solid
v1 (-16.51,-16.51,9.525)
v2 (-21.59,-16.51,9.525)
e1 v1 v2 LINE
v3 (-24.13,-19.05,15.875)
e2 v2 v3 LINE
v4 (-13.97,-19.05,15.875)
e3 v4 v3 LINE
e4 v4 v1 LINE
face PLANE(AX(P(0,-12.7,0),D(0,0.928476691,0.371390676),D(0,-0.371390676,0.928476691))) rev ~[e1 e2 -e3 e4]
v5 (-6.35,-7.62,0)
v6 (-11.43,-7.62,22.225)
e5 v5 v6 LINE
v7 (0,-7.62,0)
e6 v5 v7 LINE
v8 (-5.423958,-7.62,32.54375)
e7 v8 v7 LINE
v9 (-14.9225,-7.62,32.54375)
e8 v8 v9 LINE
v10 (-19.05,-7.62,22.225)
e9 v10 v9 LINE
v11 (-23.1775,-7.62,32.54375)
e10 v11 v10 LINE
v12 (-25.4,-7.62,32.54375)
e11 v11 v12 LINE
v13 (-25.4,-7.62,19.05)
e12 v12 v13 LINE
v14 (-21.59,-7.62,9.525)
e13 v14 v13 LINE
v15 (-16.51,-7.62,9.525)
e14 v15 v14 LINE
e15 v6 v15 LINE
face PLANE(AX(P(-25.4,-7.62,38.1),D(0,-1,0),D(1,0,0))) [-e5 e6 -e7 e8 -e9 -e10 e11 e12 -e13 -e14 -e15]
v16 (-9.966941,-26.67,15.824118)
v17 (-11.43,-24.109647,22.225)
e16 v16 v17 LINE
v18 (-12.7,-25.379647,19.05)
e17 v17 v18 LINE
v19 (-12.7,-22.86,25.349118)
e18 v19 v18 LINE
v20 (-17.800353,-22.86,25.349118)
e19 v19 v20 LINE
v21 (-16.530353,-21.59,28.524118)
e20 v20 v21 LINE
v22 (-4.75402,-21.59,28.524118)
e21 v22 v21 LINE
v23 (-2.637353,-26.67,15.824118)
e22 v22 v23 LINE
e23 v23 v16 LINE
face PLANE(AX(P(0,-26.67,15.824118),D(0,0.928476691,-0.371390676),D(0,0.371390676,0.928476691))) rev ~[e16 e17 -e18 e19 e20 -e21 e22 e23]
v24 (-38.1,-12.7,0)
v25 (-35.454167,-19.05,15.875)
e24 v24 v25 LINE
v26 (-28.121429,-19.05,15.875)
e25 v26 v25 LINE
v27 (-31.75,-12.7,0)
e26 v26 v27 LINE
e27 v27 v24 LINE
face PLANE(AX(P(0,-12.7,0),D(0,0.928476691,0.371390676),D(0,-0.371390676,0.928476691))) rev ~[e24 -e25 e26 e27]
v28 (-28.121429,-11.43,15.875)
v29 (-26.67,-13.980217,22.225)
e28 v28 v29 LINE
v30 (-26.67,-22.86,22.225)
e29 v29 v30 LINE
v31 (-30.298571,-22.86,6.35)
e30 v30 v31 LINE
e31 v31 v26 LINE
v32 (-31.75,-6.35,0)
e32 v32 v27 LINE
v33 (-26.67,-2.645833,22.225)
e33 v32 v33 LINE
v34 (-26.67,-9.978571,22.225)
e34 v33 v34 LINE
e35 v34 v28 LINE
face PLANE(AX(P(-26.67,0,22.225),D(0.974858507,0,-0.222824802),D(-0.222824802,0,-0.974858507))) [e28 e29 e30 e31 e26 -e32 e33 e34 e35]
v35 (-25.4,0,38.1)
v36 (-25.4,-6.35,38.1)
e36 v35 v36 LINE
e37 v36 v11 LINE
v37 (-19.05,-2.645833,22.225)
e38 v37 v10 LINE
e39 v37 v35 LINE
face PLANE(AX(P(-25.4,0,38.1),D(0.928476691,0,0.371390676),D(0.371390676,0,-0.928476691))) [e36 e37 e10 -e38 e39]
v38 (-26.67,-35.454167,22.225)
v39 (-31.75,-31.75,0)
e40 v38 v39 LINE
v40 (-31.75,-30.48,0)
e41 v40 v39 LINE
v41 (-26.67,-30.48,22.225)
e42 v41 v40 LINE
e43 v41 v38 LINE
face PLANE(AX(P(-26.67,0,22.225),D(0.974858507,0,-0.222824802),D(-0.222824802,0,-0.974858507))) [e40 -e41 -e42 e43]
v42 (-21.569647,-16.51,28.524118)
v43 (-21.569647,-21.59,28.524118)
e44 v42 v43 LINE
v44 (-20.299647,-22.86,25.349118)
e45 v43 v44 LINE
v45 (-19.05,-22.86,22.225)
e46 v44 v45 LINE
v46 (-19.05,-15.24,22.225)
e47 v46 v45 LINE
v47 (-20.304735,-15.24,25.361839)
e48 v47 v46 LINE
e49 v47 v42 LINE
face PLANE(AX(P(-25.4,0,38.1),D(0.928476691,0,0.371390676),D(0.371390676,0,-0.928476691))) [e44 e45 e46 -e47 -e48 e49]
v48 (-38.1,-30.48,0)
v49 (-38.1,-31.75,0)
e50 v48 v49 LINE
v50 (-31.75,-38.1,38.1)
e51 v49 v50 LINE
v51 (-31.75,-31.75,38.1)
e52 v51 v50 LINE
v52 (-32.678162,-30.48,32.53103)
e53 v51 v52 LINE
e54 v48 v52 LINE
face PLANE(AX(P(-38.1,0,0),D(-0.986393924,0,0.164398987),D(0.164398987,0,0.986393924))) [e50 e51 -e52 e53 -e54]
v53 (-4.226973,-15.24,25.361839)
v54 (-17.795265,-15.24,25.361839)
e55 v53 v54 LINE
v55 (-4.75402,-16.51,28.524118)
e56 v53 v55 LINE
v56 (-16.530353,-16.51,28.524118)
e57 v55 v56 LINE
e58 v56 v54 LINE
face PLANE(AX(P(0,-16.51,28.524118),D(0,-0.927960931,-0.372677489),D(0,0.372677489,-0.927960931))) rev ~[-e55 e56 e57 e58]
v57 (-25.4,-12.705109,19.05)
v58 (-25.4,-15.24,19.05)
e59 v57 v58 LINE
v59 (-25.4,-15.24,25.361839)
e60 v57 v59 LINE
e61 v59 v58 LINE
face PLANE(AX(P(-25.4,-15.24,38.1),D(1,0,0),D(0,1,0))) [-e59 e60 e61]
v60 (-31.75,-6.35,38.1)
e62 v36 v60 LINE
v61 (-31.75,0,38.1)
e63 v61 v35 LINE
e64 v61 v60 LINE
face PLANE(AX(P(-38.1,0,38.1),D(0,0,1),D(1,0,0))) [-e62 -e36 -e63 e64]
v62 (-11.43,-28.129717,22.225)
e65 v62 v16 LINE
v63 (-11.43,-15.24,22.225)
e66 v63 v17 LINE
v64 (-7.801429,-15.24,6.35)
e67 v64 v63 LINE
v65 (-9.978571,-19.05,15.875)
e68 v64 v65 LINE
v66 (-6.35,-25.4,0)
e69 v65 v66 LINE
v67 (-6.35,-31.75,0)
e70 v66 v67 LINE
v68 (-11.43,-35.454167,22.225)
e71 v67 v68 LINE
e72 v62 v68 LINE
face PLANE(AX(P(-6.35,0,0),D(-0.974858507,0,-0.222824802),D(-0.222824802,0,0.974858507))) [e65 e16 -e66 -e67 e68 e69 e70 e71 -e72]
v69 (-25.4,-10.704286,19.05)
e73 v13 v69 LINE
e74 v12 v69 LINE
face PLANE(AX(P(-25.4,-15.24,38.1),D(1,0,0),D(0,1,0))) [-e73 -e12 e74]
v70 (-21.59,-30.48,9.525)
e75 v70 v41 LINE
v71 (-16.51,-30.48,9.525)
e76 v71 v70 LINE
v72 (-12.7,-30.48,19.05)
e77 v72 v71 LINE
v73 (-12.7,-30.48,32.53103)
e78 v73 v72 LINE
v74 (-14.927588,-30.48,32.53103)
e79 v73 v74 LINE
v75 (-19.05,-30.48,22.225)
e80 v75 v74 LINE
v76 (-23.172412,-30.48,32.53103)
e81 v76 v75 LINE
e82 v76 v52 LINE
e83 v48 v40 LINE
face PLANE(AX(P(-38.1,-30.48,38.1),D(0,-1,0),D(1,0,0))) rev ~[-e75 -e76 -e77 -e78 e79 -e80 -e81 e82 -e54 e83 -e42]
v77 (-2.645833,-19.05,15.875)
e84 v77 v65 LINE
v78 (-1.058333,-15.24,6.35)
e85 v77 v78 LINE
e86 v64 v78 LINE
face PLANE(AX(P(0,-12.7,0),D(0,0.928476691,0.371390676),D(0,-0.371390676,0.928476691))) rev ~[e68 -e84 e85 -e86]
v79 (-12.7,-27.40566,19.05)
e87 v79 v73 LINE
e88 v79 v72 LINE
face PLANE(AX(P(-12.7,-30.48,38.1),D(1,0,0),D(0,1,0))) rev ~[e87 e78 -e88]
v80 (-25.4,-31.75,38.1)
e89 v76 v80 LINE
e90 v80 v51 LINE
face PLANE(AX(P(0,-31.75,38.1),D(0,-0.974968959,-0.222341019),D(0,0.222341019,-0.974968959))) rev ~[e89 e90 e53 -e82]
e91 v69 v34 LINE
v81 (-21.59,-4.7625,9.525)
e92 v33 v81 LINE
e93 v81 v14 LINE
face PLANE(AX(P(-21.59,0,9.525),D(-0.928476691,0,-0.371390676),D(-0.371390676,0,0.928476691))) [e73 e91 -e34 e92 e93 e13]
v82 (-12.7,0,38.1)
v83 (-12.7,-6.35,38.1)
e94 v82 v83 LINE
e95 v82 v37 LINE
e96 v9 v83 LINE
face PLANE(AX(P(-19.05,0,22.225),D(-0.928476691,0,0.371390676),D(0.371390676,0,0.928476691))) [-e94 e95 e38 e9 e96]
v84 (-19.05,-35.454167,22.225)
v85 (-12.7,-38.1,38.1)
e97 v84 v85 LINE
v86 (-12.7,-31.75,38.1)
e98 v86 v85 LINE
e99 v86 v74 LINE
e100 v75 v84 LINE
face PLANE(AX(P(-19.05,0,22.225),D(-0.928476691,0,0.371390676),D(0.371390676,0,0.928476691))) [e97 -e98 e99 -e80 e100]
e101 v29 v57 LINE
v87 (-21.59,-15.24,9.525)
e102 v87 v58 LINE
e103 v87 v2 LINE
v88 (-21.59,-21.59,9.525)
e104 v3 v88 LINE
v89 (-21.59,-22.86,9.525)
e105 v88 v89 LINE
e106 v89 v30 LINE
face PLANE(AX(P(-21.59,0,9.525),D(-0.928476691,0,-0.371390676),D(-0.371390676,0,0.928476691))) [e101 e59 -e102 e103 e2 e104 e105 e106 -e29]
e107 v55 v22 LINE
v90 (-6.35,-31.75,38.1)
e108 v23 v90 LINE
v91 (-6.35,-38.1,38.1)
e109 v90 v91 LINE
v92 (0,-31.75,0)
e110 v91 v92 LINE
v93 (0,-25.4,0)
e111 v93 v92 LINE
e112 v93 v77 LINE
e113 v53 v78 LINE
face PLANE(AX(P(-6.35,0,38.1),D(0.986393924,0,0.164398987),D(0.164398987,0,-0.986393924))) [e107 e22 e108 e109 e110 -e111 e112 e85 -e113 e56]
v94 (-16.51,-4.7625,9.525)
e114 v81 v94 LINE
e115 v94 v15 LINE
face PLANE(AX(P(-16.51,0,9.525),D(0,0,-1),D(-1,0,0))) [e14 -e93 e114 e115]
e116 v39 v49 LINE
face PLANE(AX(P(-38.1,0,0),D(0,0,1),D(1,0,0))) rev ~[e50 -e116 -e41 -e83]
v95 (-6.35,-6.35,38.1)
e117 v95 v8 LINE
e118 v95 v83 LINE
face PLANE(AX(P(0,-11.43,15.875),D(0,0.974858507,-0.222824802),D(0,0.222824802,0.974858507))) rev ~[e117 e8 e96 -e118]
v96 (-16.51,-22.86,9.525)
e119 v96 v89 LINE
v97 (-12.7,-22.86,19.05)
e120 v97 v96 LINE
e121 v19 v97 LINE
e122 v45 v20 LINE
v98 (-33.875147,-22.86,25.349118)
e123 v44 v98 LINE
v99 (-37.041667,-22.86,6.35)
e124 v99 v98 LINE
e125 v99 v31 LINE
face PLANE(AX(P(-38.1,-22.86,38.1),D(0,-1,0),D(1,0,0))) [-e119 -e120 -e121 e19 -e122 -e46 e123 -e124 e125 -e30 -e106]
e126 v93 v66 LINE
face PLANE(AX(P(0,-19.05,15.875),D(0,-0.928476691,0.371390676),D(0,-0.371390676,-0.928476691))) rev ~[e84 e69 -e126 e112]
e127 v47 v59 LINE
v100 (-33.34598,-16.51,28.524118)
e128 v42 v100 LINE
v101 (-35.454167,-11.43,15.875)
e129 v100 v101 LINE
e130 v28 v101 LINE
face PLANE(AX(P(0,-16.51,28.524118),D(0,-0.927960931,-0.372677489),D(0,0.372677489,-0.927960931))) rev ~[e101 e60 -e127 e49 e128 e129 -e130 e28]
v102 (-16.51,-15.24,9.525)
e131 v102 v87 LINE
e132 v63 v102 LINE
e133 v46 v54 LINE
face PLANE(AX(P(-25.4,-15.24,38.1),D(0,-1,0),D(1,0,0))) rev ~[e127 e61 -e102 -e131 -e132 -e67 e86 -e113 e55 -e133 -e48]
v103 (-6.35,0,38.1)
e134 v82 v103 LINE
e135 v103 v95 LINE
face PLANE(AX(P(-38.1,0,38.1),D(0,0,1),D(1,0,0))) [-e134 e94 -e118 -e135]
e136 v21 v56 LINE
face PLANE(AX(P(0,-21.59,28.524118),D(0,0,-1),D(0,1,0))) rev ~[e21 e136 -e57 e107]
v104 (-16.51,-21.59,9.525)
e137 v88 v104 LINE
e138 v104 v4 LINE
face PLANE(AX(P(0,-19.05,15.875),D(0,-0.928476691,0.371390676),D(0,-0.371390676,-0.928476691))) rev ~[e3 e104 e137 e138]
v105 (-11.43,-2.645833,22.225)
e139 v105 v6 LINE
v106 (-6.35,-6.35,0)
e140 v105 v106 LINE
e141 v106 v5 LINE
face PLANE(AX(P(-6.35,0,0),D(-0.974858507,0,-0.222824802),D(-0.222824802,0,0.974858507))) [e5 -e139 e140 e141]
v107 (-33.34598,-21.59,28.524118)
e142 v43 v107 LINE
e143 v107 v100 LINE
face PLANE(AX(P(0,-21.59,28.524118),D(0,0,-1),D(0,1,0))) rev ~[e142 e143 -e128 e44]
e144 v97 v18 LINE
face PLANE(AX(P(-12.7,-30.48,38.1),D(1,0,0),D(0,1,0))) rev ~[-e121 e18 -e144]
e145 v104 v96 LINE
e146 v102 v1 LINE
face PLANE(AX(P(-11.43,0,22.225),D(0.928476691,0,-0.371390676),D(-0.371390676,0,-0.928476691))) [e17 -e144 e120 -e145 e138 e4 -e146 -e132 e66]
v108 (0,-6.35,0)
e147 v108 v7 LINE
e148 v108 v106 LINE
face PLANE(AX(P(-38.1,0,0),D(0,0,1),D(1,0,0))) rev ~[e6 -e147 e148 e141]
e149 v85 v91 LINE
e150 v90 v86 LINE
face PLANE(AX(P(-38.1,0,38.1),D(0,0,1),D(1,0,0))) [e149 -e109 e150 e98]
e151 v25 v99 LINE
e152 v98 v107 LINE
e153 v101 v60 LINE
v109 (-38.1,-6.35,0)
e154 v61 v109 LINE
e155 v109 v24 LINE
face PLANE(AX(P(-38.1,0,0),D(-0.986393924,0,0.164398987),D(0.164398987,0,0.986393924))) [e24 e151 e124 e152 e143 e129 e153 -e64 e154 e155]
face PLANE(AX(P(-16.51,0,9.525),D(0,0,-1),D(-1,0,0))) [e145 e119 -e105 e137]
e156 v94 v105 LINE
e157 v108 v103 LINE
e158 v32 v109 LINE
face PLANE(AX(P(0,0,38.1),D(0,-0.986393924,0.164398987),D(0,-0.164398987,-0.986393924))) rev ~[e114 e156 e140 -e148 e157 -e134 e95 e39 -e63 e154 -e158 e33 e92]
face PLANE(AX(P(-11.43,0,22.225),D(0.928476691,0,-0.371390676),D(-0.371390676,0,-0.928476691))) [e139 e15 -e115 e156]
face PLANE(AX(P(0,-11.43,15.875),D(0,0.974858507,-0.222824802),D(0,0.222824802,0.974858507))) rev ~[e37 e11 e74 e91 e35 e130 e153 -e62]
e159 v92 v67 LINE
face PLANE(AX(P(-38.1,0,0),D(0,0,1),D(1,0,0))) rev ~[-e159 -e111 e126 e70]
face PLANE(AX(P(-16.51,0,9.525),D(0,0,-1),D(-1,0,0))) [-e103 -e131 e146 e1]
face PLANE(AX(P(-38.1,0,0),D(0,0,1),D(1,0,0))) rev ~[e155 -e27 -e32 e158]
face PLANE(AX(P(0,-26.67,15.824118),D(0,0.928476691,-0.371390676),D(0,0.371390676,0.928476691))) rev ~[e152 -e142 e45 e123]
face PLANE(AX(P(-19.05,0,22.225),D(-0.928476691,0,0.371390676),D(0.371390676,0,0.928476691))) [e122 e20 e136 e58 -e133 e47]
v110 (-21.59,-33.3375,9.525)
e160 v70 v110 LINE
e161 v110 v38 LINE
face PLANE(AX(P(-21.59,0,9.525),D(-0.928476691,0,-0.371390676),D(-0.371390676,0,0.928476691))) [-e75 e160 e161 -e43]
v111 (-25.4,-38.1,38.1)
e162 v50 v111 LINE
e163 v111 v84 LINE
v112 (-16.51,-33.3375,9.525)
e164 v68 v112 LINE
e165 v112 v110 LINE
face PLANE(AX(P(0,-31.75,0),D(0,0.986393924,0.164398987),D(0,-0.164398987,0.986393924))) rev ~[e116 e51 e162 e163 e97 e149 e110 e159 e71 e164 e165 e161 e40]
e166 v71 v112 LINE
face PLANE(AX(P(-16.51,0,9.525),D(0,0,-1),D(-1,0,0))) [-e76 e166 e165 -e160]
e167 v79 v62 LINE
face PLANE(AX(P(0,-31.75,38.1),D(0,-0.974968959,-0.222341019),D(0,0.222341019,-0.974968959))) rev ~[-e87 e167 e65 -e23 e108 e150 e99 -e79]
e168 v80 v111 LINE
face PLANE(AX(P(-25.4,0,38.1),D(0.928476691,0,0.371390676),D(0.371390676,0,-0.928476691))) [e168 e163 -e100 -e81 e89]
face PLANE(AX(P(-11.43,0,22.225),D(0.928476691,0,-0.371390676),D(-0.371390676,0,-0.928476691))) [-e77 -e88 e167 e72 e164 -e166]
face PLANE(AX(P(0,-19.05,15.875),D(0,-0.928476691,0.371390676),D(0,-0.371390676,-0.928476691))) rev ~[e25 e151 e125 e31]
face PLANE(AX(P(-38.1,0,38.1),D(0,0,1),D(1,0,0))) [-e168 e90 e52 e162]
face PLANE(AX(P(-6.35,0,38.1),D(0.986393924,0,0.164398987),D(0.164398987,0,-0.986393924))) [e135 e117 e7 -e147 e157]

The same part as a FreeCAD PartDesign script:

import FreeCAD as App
import Part
import Sketcher

V = App.Vector
Q = App.Units.Quantity

doc = App.newDocument("Part")
body = doc.addObject("PartDesign::Body", "Body")

sketch1 = doc.addObject("Sketcher::SketchObject", "Sketch")
body.addObject(sketch1)
sketch1.AttachmentSupport = (doc.XZ_Plane, [""])
sketch1.MapMode = "FlatFace"
sketch1.addGeometry([
    Part.LineSegment(V(-38.1, 38.1, 0), V(-38.1, 0, 0)),
    Part.LineSegment(V(-38.1, 0, 0), V(0, 0, 0)),
    Part.LineSegment(V(0, 0, 0), V(0, 38.1, 0)),
    Part.LineSegment(V(0, 38.1, 0), V(-38.1, 38.1, 0)),
], False)
sketch1.addConstraint([
    Sketcher.Constraint("Coincident", 0, 2, 1, 1),
    Sketcher.Constraint("Coincident", 1, 2, 2, 1),
    Sketcher.Constraint("Coincident", 2, 2, 3, 1),
    Sketcher.Constraint("Coincident", 3, 2, 0, 1),
    Sketcher.Constraint("Vertical", 0),
    Sketcher.Constraint("Horizontal", 1),
    Sketcher.Constraint("Vertical", 2),
    Sketcher.Constraint("Horizontal", 3),
    Sketcher.Constraint("Coincident", 1, 2, -1, 1),
    Sketcher.Constraint("Equal", 3, 0),
    Sketcher.Constraint("DistanceX", 1, 1, 1, 2, Q("1.5 in")),
])
pad1 = doc.addObject("PartDesign::Pad", "Pad")
body.addObject(pad1)
pad1.Profile = sketch1
pad1.Length = Q("1.5 in")

sketch2 = doc.addObject("Sketcher::SketchObject", "Sketch001")
body.addObject(sketch2)
sketch2.AttachmentSupport = (doc.YZ_Plane, [""])
sketch2.MapMode = "FlatFace"
sketch2.addGeometry([
    Part.LineSegment(V(-11.43, 15.875, 0), V(-6.35, 38.1, 0)),
    Part.LineSegment(V(-6.35, 38.1, 0), V(-31.75, 38.1, 0)),
    Part.LineSegment(V(-31.75, 38.1, 0), V(-26.67, 15.824118, 0)),
    Part.LineSegment(V(-26.67, 15.824118, 0), V(-21.59, 28.524118, 0)),
    Part.LineSegment(V(-21.59, 28.524118, 0), V(-16.51, 28.524118, 0)),
    Part.LineSegment(V(-16.51, 28.524118, 0), V(-11.43, 15.875, 0)),
    Part.LineSegment(V(-38.1, 0, 0), V(-31.75, 0, 0)),
    Part.LineSegment(V(-31.75, 0, 0), V(-38.1, 38.1, 0)),
    Part.LineSegment(V(-38.1, 38.1, 0), V(-38.1, 0, 0)),
    Part.LineSegment(V(-25.4, 0, 0), V(-12.7, 0, 0)),
    Part.LineSegment(V(-12.7, 0, 0), V(-19.05, 15.875, 0)),
    Part.LineSegment(V(-19.05, 15.875, 0), V(-25.4, 0, 0)),
    Part.LineSegment(V(-6.35, 0, 0), V(0, 0, 0)),
    Part.LineSegment(V(0, 0, 0), V(0, 38.1, 0)),
    Part.LineSegment(V(0, 38.1, 0), V(-6.35, 0, 0)),
], False)
sketch2.addConstraint([
    Sketcher.Constraint("Coincident", 0, 2, 1, 1),
    Sketcher.Constraint("Coincident", 1, 2, 2, 1),
    Sketcher.Constraint("Coincident", 2, 2, 3, 1),
    Sketcher.Constraint("Coincident", 3, 2, 4, 1),
    Sketcher.Constraint("Coincident", 4, 2, 5, 1),
    Sketcher.Constraint("Coincident", 5, 2, 0, 1),
    Sketcher.Constraint("Coincident", 6, 2, 7, 1),
    Sketcher.Constraint("Coincident", 7, 2, 8, 1),
    Sketcher.Constraint("Coincident", 8, 2, 6, 1),
    Sketcher.Constraint("Coincident", 9, 2, 10, 1),
    Sketcher.Constraint("Coincident", 10, 2, 11, 1),
    Sketcher.Constraint("Coincident", 11, 2, 9, 1),
    Sketcher.Constraint("Coincident", 12, 2, 13, 1),
    Sketcher.Constraint("Coincident", 13, 2, 14, 1),
    Sketcher.Constraint("Coincident", 14, 2, 12, 1),
    Sketcher.Constraint("Horizontal", 1),
    Sketcher.Constraint("Horizontal", 4),
    Sketcher.Constraint("Horizontal", 6),
    Sketcher.Constraint("Vertical", 8),
    Sketcher.Constraint("Horizontal", 9),
    Sketcher.Constraint("Horizontal", 12),
    Sketcher.Constraint("Vertical", 13),
    Sketcher.Constraint("Coincident", 12, 2, -1, 1),
    Sketcher.Constraint("PointOnObject", 6, 2, -1),
    Sketcher.Constraint("PointOnObject", 9, 2, -1),
    Sketcher.Constraint("Parallel", 3, 11),
    Sketcher.Constraint("Horizontal", 1, 2, 7, 2),
    Sketcher.Constraint("Horizontal", 5, 2, 10, 2),
    Sketcher.Constraint("Horizontal", 7, 2, 13, 2),
    Sketcher.Constraint("Vertical", 1, 2, 6, 2),
    Sketcher.Constraint("Vertical", 0, 2, 14, 2),
    Sketcher.Constraint("Equal", 6, 12),
    Sketcher.Constraint("Equal", 10, 11),
    Sketcher.Constraint("DistanceX", 1, 2, 1, 1, Q("1 in")),
    Sketcher.Constraint("DistanceX", 4, 1, 4, 2, Q("0.2 in")),
    Sketcher.Constraint("DistanceX", 9, 1, 9, 2, Q("0.5 in")),
    Sketcher.Constraint("DistanceY", 8, 2, 8, 1, Q("1.5 in")),
    Sketcher.Constraint("DistanceX", 11, 2, -1, 1, Q("1 in")),
    Sketcher.Constraint("DistanceX", 8, 2, 9, 2, Q("1 in")),
    Sketcher.Constraint("DistanceX", 1, 2, 2, 2, Q("0.2 in")),
    Sketcher.Constraint("DistanceX", 2, 2, 3, 2, Q("0.2 in")),
    Sketcher.Constraint("DistanceY", 2, 2, 3, 2, Q("0.5 in")),
    Sketcher.Constraint("DistanceX", 4, 2, 5, 2, Q("0.2 in")),
    Sketcher.Constraint("Distance", 5, 13.631089),
])
pocket1 = doc.addObject("PartDesign::Pocket", "Pocket")
body.addObject(pocket1)
pocket1.Profile = sketch2
pocket1.Length = Q("1.5 in")

sketch3 = doc.addObject("Sketcher::SketchObject", "Sketch002")
body.addObject(sketch3)
sketch3.AttachmentSupport = (doc.XZ_Plane, [""])
sketch3.MapMode = "FlatFace"
sketch3.addGeometry([
    Part.LineSegment(V(0, 0, 0), V(0, 38.1, 0)),
    Part.LineSegment(V(0, 38.1, 0), V(-6.35, 38.1, 0)),
    Part.LineSegment(V(-6.35, 38.1, 0), V(0, 0, 0)),
    Part.LineSegment(V(-19.05, 22.225, 0), V(-12.7, 38.1, 0)),
    Part.LineSegment(V(-12.7, 38.1, 0), V(-25.4, 38.1, 0)),
    Part.LineSegment(V(-25.4, 38.1, 0), V(-19.05, 22.225, 0)),
    Part.LineSegment(V(-38.1, 0, 0), V(-31.75, 38.1, 0)),
    Part.LineSegment(V(-31.75, 38.1, 0), V(-38.1, 38.1, 0)),
    Part.LineSegment(V(-38.1, 38.1, 0), V(-38.1, 0, 0)),
    Part.LineSegment(V(-31.75, 0, 0), V(-6.35, 0, 0)),
    Part.LineSegment(V(-6.35, 0, 0), V(-11.43, 22.225, 0)),
    Part.LineSegment(V(-11.43, 22.225, 0), V(-16.51, 9.525, 0)),
    Part.LineSegment(V(-16.51, 9.525, 0), V(-21.59, 9.525, 0)),
    Part.LineSegment(V(-21.59, 9.525, 0), V(-26.67, 22.225, 0)),
    Part.LineSegment(V(-26.67, 22.225, 0), V(-31.75, 0, 0)),
], False)
sketch3.addConstraint([
    Sketcher.Constraint("Coincident", 0, 2, 1, 1),
    Sketcher.Constraint("Coincident", 1, 2, 2, 1),
    Sketcher.Constraint("Coincident", 2, 2, 0, 1),
    Sketcher.Constraint("Coincident", 3, 2, 4, 1),
    Sketcher.Constraint("Coincident", 4, 2, 5, 1),
    Sketcher.Constraint("Coincident", 5, 2, 3, 1),
    Sketcher.Constraint("Coincident", 6, 2, 7, 1),
    Sketcher.Constraint("Coincident", 7, 2, 8, 1),
    Sketcher.Constraint("Coincident", 8, 2, 6, 1),
    Sketcher.Constraint("Coincident", 9, 2, 10, 1),
    Sketcher.Constraint("Coincident", 10, 2, 11, 1),
    Sketcher.Constraint("Coincident", 11, 2, 12, 1),
    Sketcher.Constraint("Coincident", 12, 2, 13, 1),
    Sketcher.Constraint("Coincident", 13, 2, 14, 1),
    Sketcher.Constraint("Coincident", 14, 2, 9, 1),
    Sketcher.Constraint("Vertical", 0),
    Sketcher.Constraint("Horizontal", 1),
    Sketcher.Constraint("Horizontal", 4),
    Sketcher.Constraint("Horizontal", 7),
    Sketcher.Constraint("Vertical", 8),
    Sketcher.Constraint("Horizontal", 9),
    Sketcher.Constraint("Horizontal", 12),
    Sketcher.Constraint("Coincident", 2, 2, -1, 1),
    Sketcher.Constraint("PointOnObject", 8, 2, -1),
    Sketcher.Constraint("PointOnObject", 9, 2, -1),
    Sketcher.Constraint("Parallel", 3, 11),
    Sketcher.Constraint("Parallel", 5, 13),
    Sketcher.Constraint("Horizontal", 1, 2, 3, 2),
    Sketcher.Constraint("Horizontal", 4, 2, 6, 2),
    Sketcher.Constraint("Horizontal", 5, 2, 10, 2),
    Sketcher.Constraint("Horizontal", 10, 2, 13, 2),
    Sketcher.Constraint("Vertical", 1, 2, 9, 2),
    Sketcher.Constraint("Vertical", 6, 2, 14, 2),
    Sketcher.Constraint("Equal", 1, 7),
    Sketcher.Constraint("Equal", 3, 5),
    Sketcher.Constraint("Equal", 10, 14),
    Sketcher.Constraint("DistanceX", 9, 1, 9, 2, Q("1 in")),
    Sketcher.Constraint("DistanceX", 4, 2, 4, 1, Q("0.5 in")),
    Sketcher.Constraint("DistanceX", 12, 2, 12, 1, Q("0.2 in")),
    Sketcher.Constraint("DistanceY", 0, 1, 0, 2, Q("1.5 in")),
    Sketcher.Constraint("DistanceX", 4, 2, -1, 1, Q("1 in")),
    Sketcher.Constraint("DistanceX", 7, 2, 3, 2, Q("1 in")),
    Sketcher.Constraint("DistanceX", 5, 2, 10, 2, Q("0.3 in")),
    Sketcher.Constraint("DistanceY", 11, 2, 5, 2, Q("0.5 in")),
])
pocket2 = doc.addObject("PartDesign::Pocket", "Pocket001")
body.addObject(pocket2)
pocket2.Profile = sketch3
pocket2.Length = Q("1.5 in")
pocket2.Reversed = True

sketch4 = doc.addObject("Sketcher::SketchObject", "Sketch003")
body.addObject(sketch4)
sketch4.AttachmentSupport = (doc.XY_Plane, [""])
sketch4.MapMode = "FlatFace"
sketch4.AttachmentOffset = App.Placement(V(0, 0, 1.5 * 25.4), App.Rotation())
sketch4.addGeometry([
    Part.LineSegment(V(-38.1, -22.86, 0), V(-38.1, -30.48, 0)),
    Part.LineSegment(V(-38.1, -30.48, 0), V(-12.7, -30.48, 0)),
    Part.LineSegment(V(-12.7, -30.48, 0), V(-12.7, -22.86, 0)),
    Part.LineSegment(V(-12.7, -22.86, 0), V(-38.1, -22.86, 0)),
    Part.LineSegment(V(-25.4, -7.62, 0), V(-25.4, -15.24, 0)),
    Part.LineSegment(V(-25.4, -15.24, 0), V(0, -15.24, 0)),
    Part.LineSegment(V(0, -15.24, 0), V(0, -7.62, 0)),
    Part.LineSegment(V(0, -7.62, 0), V(-25.4, -7.62, 0)),
], False)
sketch4.addConstraint([
    Sketcher.Constraint("Coincident", 0, 2, 1, 1),
    Sketcher.Constraint("Coincident", 1, 2, 2, 1),
    Sketcher.Constraint("Coincident", 2, 2, 3, 1),
    Sketcher.Constraint("Coincident", 3, 2, 0, 1),
    Sketcher.Constraint("Coincident", 4, 2, 5, 1),
    Sketcher.Constraint("Coincident", 5, 2, 6, 1),
    Sketcher.Constraint("Coincident", 6, 2, 7, 1),
    Sketcher.Constraint("Coincident", 7, 2, 4, 1),
    Sketcher.Constraint("Vertical", 0),
    Sketcher.Constraint("Horizontal", 1),
    Sketcher.Constraint("Vertical", 2),
    Sketcher.Constraint("Horizontal", 3),
    Sketcher.Constraint("Vertical", 4),
    Sketcher.Constraint("Horizontal", 5),
    Sketcher.Constraint("Vertical", 6),
    Sketcher.Constraint("Horizontal", 7),
    Sketcher.Constraint("PointOnObject", 5, 2, -2),
    Sketcher.Constraint("Equal", 3, 5),
    Sketcher.Constraint("Equal", 2, 4),
    Sketcher.Constraint("DistanceX", 1, 1, 1, 2, Q("1 in")),
    Sketcher.Constraint("DistanceY", 0, 2, 0, 1, Q("0.3 in")),
    Sketcher.Constraint("DistanceX", 0, 2, -1, 1, Q("1.5 in")),
    Sketcher.Constraint("DistanceY", 0, 2, -1, 1, Q("1.2 in")),
    Sketcher.Constraint("DistanceY", 4, 2, -1, 1, Q("0.6 in")),
])
pocket3 = doc.addObject("PartDesign::Pocket", "Pocket002")
body.addObject(pocket3)
pocket3.Profile = sketch4
pocket3.Length = Q("1.5 in")

doc.recompute()
